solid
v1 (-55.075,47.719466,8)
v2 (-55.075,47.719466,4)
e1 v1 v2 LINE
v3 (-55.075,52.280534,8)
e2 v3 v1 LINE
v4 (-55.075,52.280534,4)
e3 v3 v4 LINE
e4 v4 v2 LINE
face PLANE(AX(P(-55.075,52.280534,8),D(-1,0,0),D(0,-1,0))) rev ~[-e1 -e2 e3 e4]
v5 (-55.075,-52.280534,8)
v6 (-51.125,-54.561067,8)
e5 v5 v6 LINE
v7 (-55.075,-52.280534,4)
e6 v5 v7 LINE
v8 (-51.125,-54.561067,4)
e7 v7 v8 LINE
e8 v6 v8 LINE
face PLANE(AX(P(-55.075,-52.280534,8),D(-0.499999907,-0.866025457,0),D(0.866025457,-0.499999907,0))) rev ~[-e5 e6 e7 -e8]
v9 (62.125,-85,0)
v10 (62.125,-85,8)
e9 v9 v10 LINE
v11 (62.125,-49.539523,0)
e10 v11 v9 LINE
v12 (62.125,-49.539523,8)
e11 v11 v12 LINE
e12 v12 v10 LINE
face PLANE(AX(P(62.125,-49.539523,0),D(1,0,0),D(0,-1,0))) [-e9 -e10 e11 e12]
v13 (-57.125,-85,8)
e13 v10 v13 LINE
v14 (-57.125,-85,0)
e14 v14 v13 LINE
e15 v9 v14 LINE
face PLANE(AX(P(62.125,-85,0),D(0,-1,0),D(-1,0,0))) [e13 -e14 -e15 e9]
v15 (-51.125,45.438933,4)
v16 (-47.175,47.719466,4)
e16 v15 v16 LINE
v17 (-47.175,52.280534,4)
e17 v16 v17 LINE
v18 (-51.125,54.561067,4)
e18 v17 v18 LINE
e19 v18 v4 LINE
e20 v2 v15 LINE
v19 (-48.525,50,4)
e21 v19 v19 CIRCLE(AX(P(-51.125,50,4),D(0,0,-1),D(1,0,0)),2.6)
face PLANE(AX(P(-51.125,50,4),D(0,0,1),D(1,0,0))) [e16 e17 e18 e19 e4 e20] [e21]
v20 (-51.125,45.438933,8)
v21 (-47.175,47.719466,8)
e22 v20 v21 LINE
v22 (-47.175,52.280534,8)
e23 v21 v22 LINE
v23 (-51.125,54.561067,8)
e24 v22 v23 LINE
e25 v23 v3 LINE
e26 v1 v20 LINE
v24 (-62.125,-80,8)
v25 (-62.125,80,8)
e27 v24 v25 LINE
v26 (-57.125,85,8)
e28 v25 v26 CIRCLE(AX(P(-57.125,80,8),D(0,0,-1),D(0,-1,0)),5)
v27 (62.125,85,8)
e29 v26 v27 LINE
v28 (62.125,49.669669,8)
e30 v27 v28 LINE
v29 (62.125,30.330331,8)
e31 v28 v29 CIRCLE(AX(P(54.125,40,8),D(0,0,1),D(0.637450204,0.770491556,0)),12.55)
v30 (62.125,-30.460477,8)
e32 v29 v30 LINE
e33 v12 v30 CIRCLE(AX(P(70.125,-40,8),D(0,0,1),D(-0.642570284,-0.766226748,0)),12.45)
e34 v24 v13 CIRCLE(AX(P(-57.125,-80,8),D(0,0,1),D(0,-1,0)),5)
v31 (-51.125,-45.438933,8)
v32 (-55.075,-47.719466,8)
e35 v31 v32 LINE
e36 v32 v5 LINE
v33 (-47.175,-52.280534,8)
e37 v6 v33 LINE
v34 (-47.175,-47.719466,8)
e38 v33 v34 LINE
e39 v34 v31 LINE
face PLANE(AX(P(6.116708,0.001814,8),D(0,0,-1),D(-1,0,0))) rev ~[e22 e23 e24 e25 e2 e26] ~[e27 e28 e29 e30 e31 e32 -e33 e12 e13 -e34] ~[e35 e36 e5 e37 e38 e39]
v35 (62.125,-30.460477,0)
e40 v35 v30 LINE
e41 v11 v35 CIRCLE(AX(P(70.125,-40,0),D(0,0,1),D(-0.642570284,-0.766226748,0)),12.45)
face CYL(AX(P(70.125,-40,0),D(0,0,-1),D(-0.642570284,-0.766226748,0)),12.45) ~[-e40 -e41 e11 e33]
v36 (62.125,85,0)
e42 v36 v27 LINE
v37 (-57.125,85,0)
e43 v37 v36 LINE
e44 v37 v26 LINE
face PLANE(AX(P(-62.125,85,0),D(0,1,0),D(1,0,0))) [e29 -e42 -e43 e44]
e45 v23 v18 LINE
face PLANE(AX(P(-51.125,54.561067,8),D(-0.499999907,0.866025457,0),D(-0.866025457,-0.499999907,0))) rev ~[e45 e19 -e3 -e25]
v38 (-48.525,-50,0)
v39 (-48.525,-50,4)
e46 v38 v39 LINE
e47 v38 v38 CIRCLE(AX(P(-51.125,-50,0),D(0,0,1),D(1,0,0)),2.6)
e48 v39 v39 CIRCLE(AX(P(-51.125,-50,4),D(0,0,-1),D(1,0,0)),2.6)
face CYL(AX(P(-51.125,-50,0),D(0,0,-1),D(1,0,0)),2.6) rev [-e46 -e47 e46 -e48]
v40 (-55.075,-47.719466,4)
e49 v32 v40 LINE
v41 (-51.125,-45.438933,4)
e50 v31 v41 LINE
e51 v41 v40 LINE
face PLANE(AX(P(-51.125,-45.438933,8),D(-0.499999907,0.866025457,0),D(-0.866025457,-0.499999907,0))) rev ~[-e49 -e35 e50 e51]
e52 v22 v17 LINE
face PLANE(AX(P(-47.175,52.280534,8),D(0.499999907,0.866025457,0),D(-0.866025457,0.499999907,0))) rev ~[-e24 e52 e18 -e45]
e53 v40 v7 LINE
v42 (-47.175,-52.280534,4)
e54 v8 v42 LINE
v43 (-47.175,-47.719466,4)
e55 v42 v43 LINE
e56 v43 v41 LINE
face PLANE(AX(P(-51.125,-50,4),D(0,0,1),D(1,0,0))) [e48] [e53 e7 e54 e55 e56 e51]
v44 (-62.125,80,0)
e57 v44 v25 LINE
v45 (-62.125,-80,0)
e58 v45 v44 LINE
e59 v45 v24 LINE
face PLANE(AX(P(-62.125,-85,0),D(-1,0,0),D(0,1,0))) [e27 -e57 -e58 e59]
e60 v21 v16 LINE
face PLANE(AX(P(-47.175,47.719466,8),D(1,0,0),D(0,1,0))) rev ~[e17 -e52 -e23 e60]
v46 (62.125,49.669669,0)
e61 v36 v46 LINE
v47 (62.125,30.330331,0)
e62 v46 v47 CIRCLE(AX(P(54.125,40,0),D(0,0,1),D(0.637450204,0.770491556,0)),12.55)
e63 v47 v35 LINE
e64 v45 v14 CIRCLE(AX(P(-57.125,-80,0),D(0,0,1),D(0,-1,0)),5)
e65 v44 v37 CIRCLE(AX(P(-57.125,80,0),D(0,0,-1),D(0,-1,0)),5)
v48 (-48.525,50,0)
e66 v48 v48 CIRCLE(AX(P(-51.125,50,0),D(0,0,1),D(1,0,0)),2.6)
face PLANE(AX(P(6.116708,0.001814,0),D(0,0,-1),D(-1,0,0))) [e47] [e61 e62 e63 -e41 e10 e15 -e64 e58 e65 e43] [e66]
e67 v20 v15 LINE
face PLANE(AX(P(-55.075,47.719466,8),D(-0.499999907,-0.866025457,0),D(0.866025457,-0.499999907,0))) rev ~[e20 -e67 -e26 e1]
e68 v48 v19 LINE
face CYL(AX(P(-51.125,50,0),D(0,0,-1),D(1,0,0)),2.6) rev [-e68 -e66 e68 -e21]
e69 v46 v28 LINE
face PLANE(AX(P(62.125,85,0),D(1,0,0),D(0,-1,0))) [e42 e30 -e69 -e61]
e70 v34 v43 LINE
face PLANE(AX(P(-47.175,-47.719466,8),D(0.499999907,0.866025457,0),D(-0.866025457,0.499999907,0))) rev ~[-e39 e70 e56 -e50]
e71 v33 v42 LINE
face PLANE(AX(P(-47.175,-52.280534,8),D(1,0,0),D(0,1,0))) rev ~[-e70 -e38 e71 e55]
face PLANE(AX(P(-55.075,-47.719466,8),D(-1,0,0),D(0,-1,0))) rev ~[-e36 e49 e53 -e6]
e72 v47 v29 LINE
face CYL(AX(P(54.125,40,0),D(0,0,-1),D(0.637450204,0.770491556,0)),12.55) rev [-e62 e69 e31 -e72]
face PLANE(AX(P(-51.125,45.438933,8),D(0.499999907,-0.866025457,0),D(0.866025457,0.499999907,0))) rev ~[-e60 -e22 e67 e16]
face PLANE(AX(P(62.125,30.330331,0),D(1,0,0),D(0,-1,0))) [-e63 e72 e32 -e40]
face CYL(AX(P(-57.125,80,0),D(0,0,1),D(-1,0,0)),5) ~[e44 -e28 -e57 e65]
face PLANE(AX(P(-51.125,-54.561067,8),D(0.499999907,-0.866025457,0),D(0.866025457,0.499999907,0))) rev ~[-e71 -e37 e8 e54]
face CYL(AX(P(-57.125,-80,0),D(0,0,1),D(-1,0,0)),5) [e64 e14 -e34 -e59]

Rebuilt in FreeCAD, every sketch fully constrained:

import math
import FreeCAD as App
import Part
import Sketcher

V = App.Vector
Q = App.Units.Quantity


def edges_at(feature, points):
    """Names of the edges that pass closest to the given points."""
    edges = feature.Shape.Edges
    near = lambda p: min(range(len(edges)), key=lambda i: edges[i].distToShape(Part.Vertex(*p))[0])
    return sorted({f"Edge{near(p) + 1}" for p in points})


def add_polygon(sketch, points):
    """Adds a closed chain of lines whose ends are joined by coincident constraints."""
    first, n = sketch.GeometryCount, len(points)
    for a, b in zip(points, points[1:] + points[:1]):
        sketch.addGeometry(Part.LineSegment(App.Vector(*a, 0), App.Vector(*b, 0)), False)
    for i in range(n):
        sketch.addConstraint(Sketcher.Constraint("Coincident", first + i, 2, first + (i + 1) % n, 1))

doc = App.newDocument("Part")
body = doc.addObject("PartDesign::Body", "Body")

# Sketch on XY plane
sketch1 = body.newObject("Sketcher::SketchObject", "Sketch")
sketch1.AttachmentSupport = (doc.getObject("XY_Plane"), [""])
sketch1.MapMode = "FlatFace"
sketch1.addGeometry(Part.LineSegment(V(-62.125, 85, 0), V(-62.125, -85, 0)), False)
sketch1.addGeometry(Part.LineSegment(V(-62.125, -85, 0), V(62.125, -85, 0)), False)
sketch1.addGeometry(Part.LineSegment(V(62.125, -85, 0), V(62.125, -49.539523, 0)), False)
sketch1.addGeometry(Part.ArcOfCircle(Part.Circle(V(70.125, -40, 0), V(0, 0, 1), 12.45), math.radians(-129.983747), math.radians(129.983747)), False)
sketch1.addGeometry(Part.LineSegment(V(62.125, -30.460477, 0), V(62.125, 30.330331, 0)), False)
sketch1.addGeometry(Part.ArcOfCircle(Part.Circle(V(54.125, 40, 0), V(0, 0, 1), 12.55), math.radians(50.398051), math.radians(309.601949)), False)
sketch1.addGeometry(Part.LineSegment(V(62.125, 49.669669, 0), V(62.125, 85, 0)), False)
sketch1.addGeometry(Part.LineSegment(V(62.125, 85, 0), V(-62.125, 85, 0)), False)
sketch1.addGeometry(Part.Circle(V(-51.125, -50, 0), V(0, 0, 1), 2.6), False)
sketch1.addGeometry(Part.Circle(V(-51.125, 50, 0), V(0, 0, 1), 2.6), False)
sketch1.addConstraint(Sketcher.Constraint("Coincident", 0, 2, 1, 1))
sketch1.addConstraint(Sketcher.Constraint("Coincident", 1, 2, 2, 1))
sketch1.addConstraint(Sketcher.Constraint("Coincident", 2, 2, 3, 1))
sketch1.addConstraint(Sketcher.Constraint("Coincident", 3, 2, 4, 1))
sketch1.addConstraint(Sketcher.Constraint("Coincident", 4, 2, 5, 2))
sketch1.addConstraint(Sketcher.Constraint("Coincident", 5, 1, 6, 1))
sketch1.addConstraint(Sketcher.Constraint("Coincident", 6, 2, 7, 1))
sketch1.addConstraint(Sketcher.Constraint("Coincident", 7, 2, 0, 1))
sketch1.addConstraint(Sketcher.Constraint("Vertical", 0))
sketch1.addConstraint(Sketcher.Constraint("Horizontal", 1))
sketch1.addConstraint(Sketcher.Constraint("Vertical", 2))
sketch1.addConstraint(Sketcher.Constraint("Vertical", 4))
sketch1.addConstraint(Sketcher.Constraint("Vertical", 6))
sketch1.addConstraint(Sketcher.Constraint("Horizontal", 7))
sketch1.addConstraint(Sketcher.Constraint("Equal", 8, 9))
sketch1.addConstraint(Sketcher.Constraint("Symmetric", 0, 2, 6, 2, -1, 1))
sketch1.addConstraint(Sketcher.Constraint("Symmetric", 8, 3, 9, 3, -1))
sketch1.addConstraint(Sketcher.Constraint("Vertical", 2, 2, 3, 2))
sketch1.addConstraint(Sketcher.Constraint("Vertical", 4, 2, 5, 1))
sketch1.addConstraint(Sketcher.Constraint("Diameter", 8, Q("5.2 mm")))
sketch1.addConstraint(Sketcher.Constraint("DistanceY", 0, 2, 0, 1, Q("170 mm")))
sketch1.addConstraint(Sketcher.Constraint("Radius", 3, Q("12.45 mm")))
sketch1.addConstraint(Sketcher.Constraint("Radius", 5, Q("12.55 mm")))
sketch1.addConstraint(Sketcher.Constraint("DistanceY", 3, 3, -1, 1, Q("40 mm")))
sketch1.addConstraint(Sketcher.Constraint("DistanceY", -1, 1, 5, 3, Q("40 mm")))
sketch1.addConstraint(Sketcher.Constraint("DistanceY", 8, 3, -1, 1, Q("50 mm")))
sketch1.addConstraint(Sketcher.Constraint("DistanceX", 5, 3, 3, 3, Q("16 mm")))
sketch1.addConstraint(Sketcher.Constraint("DistanceX", 0, 2, 8, 3, Q("11 mm")))
sketch1.addConstraint(Sketcher.Constraint("DistanceX", 1, 2, 3, 3, Q("8 mm")))
sketch1.addConstraint(Sketcher.Constraint("DistanceX", 1, 1, 1, 2, Q("124.25 mm")))
pad1 = body.newObject("PartDesign::Pad", "Pad")
pad1.Profile = sketch1
pad1.Length = 8
doc.recompute()

fillet = body.newObject("PartDesign::Fillet", "Fillet")
fillet.Base = (pad1, edges_at(pad1, [(-62.125, 85, 4), (-62.125, -85, 4)]))
fillet.Radius = 5

# Sketch on XY plane
sketch2 = body.newObject("Sketcher::SketchObject", "Sketch001")
sketch2.AttachmentSupport = (doc.getObject("XY_Plane"), [""])
sketch2.MapMode = "FlatFace"
sketch2.AttachmentOffset = App.Placement(V(0, 0, 8), App.Rotation())
add_polygon(sketch2, [(-47.175, 52.280534), (-51.125, 54.561067), (-55.075, 52.280534), (-55.075, 47.719466), (-51.125, 45.438933), (-47.175, 47.719466)])  # lines 0-5
add_polygon(sketch2, [(-47.175, -47.719466), (-51.125, -45.438933), (-55.075, -47.719466), (-55.075, -52.280534), (-51.125, -54.561067), (-47.175, -52.280534)])  # lines 6-11
sketch2.addConstraint(Sketcher.Constraint("Vertical", 2))
sketch2.addConstraint(Sketcher.Constraint("Vertical", 5))
sketch2.addConstraint(Sketcher.Constraint("Vertical", 8))
sketch2.addConstraint(Sketcher.Constraint("Vertical", 11))
sketch2.addConstraint(Sketcher.Constraint("Symmetric", 3, 2, 6, 2, -1))
sketch2.addConstraint(Sketcher.Constraint("Symmetric", 2, 2, 7, 2, -1))
sketch2.addConstraint(Sketcher.Constraint("Symmetric", 0, 2, 9, 2, -1))
sketch2.addConstraint(Sketcher.Constraint("Symmetric", 5, 2, 10, 2, -1))
sketch2.addConstraint(Sketcher.Constraint("Parallel", 0, 3))
sketch2.addConstraint(Sketcher.Constraint("Parallel", 1, 4))
sketch2.addConstraint(Sketcher.Constraint("Parallel", 3, 6))
sketch2.addConstraint(Sketcher.Constraint("Parallel", 4, 7))
sketch2.addConstraint(Sketcher.Constraint("Parallel", 6, 9))
sketch2.addConstraint(Sketcher.Constraint("Horizontal", 2, 2, 4, 2))
sketch2.addConstraint(Sketcher.Constraint("Horizontal", 1, 2, 5, 2))
sketch2.addConstraint(Sketcher.Constraint("Angle", 0, Q("150.000006 deg")))
sketch2.addConstraint(Sketcher.Constraint("DistanceY", 7, 2, 1, 2, Q("100 mm")))
sketch2.addConstraint(Sketcher.Constraint("DistanceX", 2, 2, 4, 2, Q("7.9 mm")))
sketch2.addConstraint(Sketcher.Constraint("DistanceX", 0, 2, -1, 1, Q("51.125 mm")))
sketch2.addConstraint(Sketcher.Constraint("DistanceY", 2, 2, 2, 1, Q("4.561068 mm")))
pocket1 = body.newObject("PartDesign::Pocket", "Pocket")
pocket1.Profile = sketch2
pocket1.Length = 4

doc.recompute()
